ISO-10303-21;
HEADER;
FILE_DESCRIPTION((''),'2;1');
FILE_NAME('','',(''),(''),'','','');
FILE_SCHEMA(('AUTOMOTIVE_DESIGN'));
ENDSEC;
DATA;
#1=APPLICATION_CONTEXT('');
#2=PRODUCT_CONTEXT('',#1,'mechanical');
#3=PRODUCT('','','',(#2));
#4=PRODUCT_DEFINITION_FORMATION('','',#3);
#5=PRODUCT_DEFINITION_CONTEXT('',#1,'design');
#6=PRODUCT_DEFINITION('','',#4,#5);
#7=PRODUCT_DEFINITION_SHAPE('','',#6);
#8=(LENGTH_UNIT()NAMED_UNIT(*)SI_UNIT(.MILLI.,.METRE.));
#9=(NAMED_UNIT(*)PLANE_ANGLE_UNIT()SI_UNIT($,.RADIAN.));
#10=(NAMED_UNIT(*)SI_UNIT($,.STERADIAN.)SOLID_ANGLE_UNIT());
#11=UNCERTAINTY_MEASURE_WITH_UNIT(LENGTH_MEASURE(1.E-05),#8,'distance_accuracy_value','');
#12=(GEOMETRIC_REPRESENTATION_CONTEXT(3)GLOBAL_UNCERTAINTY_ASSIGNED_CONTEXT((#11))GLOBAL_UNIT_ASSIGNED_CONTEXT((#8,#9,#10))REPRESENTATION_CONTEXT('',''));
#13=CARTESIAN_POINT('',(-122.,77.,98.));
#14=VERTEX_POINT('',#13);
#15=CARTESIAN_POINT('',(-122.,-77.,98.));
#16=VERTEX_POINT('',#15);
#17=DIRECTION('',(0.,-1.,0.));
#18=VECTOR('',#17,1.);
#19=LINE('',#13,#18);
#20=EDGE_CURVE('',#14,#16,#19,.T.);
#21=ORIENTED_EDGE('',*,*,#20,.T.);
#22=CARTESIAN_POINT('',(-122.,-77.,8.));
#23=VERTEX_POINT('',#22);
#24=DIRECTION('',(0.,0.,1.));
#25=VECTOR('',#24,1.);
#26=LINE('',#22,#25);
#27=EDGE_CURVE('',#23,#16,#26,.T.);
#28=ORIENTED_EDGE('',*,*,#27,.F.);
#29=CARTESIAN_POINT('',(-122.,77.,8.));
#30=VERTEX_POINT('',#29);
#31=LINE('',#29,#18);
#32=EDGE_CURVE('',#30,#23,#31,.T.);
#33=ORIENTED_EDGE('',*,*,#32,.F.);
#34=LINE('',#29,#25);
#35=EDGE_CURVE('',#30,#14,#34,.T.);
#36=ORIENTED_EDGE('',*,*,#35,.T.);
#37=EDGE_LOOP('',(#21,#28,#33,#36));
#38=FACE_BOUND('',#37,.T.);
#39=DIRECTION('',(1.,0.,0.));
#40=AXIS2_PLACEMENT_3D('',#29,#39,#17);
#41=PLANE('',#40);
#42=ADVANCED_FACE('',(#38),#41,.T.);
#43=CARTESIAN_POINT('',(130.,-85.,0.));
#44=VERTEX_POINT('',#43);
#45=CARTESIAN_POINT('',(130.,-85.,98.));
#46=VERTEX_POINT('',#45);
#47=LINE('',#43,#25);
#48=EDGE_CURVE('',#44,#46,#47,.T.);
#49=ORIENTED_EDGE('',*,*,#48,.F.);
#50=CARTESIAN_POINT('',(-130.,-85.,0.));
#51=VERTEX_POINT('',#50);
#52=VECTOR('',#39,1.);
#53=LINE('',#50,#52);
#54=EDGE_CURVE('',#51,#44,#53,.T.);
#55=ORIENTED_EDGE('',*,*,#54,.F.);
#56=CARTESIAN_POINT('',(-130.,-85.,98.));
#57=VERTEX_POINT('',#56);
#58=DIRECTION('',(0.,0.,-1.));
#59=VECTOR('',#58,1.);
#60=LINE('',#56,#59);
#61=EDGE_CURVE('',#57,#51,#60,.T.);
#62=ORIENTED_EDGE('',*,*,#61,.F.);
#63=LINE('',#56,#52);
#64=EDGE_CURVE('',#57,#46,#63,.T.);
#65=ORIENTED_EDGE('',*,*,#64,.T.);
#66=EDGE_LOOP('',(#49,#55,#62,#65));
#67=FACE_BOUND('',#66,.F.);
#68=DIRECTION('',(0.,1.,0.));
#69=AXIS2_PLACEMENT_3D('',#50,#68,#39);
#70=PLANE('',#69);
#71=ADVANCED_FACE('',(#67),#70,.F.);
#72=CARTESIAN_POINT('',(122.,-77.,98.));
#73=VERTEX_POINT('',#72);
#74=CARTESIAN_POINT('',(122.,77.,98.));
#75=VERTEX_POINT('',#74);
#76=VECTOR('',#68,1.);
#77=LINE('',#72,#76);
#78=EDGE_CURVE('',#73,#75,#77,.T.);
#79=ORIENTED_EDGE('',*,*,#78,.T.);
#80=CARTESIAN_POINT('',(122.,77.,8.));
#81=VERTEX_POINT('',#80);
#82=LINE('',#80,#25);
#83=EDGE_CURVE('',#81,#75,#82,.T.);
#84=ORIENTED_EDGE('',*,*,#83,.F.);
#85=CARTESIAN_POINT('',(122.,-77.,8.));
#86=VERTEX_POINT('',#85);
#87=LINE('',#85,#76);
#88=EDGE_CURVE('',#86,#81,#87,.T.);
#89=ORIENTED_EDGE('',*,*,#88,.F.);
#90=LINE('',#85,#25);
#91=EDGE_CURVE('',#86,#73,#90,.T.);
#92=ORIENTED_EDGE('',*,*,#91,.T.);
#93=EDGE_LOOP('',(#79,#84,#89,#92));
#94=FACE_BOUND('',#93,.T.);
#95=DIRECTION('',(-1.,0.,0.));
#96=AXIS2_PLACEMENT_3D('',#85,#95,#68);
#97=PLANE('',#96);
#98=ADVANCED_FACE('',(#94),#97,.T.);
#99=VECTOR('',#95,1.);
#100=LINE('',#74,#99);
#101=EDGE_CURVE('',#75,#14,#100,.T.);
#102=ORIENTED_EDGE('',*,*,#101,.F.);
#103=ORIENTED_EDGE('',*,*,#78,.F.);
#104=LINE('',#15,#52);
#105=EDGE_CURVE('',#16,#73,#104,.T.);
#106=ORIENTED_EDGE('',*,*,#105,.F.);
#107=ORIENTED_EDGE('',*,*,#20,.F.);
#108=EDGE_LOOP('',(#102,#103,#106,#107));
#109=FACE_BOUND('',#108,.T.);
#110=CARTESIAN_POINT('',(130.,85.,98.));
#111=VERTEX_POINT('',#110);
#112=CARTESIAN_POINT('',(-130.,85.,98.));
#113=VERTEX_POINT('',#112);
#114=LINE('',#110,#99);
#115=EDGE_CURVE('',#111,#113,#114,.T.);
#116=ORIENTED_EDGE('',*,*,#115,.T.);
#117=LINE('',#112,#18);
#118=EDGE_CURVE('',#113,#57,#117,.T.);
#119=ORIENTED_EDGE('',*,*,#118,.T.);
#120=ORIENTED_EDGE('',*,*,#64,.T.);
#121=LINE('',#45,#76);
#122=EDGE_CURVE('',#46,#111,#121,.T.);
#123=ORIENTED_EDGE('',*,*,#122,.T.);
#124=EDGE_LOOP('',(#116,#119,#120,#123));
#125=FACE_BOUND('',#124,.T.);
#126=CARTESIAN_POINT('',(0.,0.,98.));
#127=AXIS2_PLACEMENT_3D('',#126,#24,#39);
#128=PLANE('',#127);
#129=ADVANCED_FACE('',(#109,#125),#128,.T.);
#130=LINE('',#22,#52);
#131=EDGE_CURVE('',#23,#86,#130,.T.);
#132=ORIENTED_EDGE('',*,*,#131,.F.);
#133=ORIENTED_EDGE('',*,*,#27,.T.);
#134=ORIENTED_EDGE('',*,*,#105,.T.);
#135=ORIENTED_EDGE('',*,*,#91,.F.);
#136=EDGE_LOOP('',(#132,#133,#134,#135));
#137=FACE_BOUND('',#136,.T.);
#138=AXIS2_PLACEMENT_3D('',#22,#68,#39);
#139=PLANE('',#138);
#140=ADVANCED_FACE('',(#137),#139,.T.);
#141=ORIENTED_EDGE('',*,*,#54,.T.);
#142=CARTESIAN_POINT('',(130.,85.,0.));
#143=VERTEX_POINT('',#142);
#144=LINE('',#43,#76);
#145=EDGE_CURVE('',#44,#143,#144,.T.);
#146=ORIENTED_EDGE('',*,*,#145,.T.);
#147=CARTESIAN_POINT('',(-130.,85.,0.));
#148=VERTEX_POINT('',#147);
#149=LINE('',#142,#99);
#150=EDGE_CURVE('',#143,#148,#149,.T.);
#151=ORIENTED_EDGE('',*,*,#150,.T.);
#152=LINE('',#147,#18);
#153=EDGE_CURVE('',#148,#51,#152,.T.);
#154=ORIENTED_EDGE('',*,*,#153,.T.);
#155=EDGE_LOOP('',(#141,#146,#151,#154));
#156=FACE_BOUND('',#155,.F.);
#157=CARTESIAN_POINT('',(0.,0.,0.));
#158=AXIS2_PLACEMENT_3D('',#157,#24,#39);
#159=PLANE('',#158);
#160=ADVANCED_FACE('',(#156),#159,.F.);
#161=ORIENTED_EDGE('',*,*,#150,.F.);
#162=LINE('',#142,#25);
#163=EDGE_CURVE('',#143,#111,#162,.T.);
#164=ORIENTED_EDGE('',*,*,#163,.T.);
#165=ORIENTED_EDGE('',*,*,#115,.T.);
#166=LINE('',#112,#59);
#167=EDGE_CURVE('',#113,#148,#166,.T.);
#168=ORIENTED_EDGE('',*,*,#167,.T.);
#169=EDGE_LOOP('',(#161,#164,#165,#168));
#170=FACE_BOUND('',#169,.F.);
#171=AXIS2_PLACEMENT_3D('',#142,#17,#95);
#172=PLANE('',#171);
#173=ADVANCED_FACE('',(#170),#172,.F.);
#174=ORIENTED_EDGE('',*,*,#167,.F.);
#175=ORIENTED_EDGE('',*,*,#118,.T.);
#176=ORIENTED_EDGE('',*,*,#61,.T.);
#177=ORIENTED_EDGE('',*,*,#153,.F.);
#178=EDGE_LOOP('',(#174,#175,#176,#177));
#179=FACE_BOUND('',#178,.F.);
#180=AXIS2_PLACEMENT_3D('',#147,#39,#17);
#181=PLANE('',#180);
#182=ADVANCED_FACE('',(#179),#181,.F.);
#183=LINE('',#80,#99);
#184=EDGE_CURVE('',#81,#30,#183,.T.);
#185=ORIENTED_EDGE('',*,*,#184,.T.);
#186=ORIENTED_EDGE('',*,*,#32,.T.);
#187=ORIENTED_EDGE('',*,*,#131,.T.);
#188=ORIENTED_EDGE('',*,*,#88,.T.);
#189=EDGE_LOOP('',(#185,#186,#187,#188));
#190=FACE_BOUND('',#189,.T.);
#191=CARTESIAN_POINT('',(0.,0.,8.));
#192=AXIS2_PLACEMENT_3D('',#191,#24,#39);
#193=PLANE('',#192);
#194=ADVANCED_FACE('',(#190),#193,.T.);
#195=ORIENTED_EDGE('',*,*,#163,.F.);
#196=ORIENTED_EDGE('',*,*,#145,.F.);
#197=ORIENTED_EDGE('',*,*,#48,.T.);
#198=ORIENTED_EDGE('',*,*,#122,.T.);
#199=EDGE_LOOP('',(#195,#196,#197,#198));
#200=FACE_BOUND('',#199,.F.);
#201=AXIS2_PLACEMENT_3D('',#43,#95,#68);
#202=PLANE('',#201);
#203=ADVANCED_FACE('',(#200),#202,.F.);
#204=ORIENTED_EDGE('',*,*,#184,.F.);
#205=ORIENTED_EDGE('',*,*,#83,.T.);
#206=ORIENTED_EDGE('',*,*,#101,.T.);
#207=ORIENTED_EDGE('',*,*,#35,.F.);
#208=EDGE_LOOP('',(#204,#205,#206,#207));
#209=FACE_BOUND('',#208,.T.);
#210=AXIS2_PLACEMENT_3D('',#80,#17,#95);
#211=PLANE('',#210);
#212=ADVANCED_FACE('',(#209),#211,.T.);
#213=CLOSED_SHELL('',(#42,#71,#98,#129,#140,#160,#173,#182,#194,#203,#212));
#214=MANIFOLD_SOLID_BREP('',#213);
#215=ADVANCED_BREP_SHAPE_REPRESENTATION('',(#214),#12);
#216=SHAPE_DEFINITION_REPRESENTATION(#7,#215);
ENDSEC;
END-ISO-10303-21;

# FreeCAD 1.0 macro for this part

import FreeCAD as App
import Part
import Sketcher

V = App.Vector

doc = App.newDocument("Part")
body = doc.addObject("PartDesign::Body", "Body")

# Sketch on XY plane
sketch1 = body.newObject("Sketcher::SketchObject", "Sketch")
sketch1.AttachmentSupport = (doc.getObject("XY_Plane"), [""])
sketch1.MapMode = "FlatFace"
sketch1.addGeometry(Part.LineSegment(V(-130, 85, 0), V(-130, -85, 0)), False)
sketch1.addGeometry(Part.LineSegment(V(-130, -85, 0), V(130, -85, 0)), False)
sketch1.addGeometry(Part.LineSegment(V(130, -85, 0), V(130, 85, 0)), False)
sketch1.addGeometry(Part.LineSegment(V(130, 85, 0), V(-130, 85, 0)), False)
sketch1.addConstraint(Sketcher.Constraint("Coincident", 0, 2, 1, 1))
sketch1.addConstraint(Sketcher.Constraint("Coincident", 1, 2, 2, 1))
sketch1.addConstraint(Sketcher.Constraint("Coincident", 2, 2, 3, 1))
sketch1.addConstraint(Sketcher.Constraint("Coincident", 3, 2, 0, 1))
sketch1.addConstraint(Sketcher.Constraint("Vertical", 0))
sketch1.addConstraint(Sketcher.Constraint("Horizontal", 1))
sketch1.addConstraint(Sketcher.Constraint("Vertical", 2))
sketch1.addConstraint(Sketcher.Constraint("Horizontal", 3))
sketch1.addConstraint(Sketcher.Constraint("Symmetric", 0, 2, 2, 2, -1, 1))
sketch1.addConstraint(Sketcher.Constraint("DistanceX", 0, 2, -1, 1, 130.0))
sketch1.addConstraint(Sketcher.Constraint("DistanceY", 0, 2, 0, 1, 170.0))
pad1 = body.newObject("PartDesign::Pad", "Pad")
pad1.Profile = sketch1
pad1.Length = 8

# Sketch on XY plane
sketch2 = body.newObject("Sketcher::SketchObject", "Sketch001")
sketch2.AttachmentSupport = (doc.getObject("XY_Plane"), [""])
sketch2.MapMode = "FlatFace"
sketch2.AttachmentOffset = App.Placement(V(0, 0, 8), App.Rotation())
sketch2.addGeometry(Part.LineSegment(V(130, -85, 0), V(130, 85, 0)), False)
sketch2.addGeometry(Part.LineSegment(V(130, 85, 0), V(-130, 85, 0)), False)
sketch2.addGeometry(Part.LineSegment(V(-130, 85, 0), V(-130, -85, 0)), False)
sketch2.addGeometry(Part.LineSegment(V(-130, -85, 0), V(130, -85, 0)), False)
sketch2.addGeometry(Part.LineSegment(V(122, -77, 0), V(-122, -77, 0)), False)
sketch2.addGeometry(Part.LineSegment(V(-122, -77, 0), V(-122, 77, 0)), False)
sketch2.addGeometry(Part.LineSegment(V(-122, 77, 0), V(122, 77, 0)), False)
sketch2.addGeometry(Part.LineSegment(V(122, 77, 0), V(122, -77, 0)), False)
sketch2.addConstraint(Sketcher.Constraint("Coincident", 0, 2, 1, 1))
sketch2.addConstraint(Sketcher.Constraint("Coincident", 1, 2, 2, 1))
sketch2.addConstraint(Sketcher.Constraint("Coincident", 2, 2, 3, 1))
sketch2.addConstraint(Sketcher.Constraint("Coincident", 3, 2, 0, 1))
sketch2.addConstraint(Sketcher.Constraint("Coincident", 4, 2, 5, 1))
sketch2.addConstraint(Sketcher.Constraint("Coincident", 5, 2, 6, 1))
sketch2.addConstraint(Sketcher.Constraint("Coincident", 6, 2, 7, 1))
sketch2.addConstraint(Sketcher.Constraint("Coincident", 7, 2, 4, 1))
sketch2.addConstraint(Sketcher.Constraint("Vertical", 0))
sketch2.addConstraint(Sketcher.Constraint("Horizontal", 1))
sketch2.addConstraint(Sketcher.Constraint("Vertical", 2))
sketch2.addConstraint(Sketcher.Constraint("Horizontal", 3))
sketch2.addConstraint(Sketcher.Constraint("Horizontal", 4))
sketch2.addConstraint(Sketcher.Constraint("Vertical", 5))
sketch2.addConstraint(Sketcher.Constraint("Horizontal", 6))
sketch2.addConstraint(Sketcher.Constraint("Vertical", 7))
sketch2.addConstraint(Sketcher.Constraint("Symmetric", 0, 2, 2, 2, -1, 1))
sketch2.addConstraint(Sketcher.Constraint("Symmetric", 4, 2, 6, 2, -1, 1))
sketch2.addConstraint(Sketcher.Constraint("DistanceX", 1, 2, 1, 1, 260.0))
sketch2.addConstraint(Sketcher.Constraint("DistanceX", 4, 2, 4, 1, 244.0))
sketch2.addConstraint(Sketcher.Constraint("DistanceY", 0, 1, 0, 2, 170.0))
sketch2.addConstraint(Sketcher.Constraint("DistanceY", 5, 1, 5, 2, 154.0))
pad2 = body.newObject("PartDesign::Pad", "Pad001")
pad2.Profile = sketch2
pad2.Length = 90

doc.recompute()
